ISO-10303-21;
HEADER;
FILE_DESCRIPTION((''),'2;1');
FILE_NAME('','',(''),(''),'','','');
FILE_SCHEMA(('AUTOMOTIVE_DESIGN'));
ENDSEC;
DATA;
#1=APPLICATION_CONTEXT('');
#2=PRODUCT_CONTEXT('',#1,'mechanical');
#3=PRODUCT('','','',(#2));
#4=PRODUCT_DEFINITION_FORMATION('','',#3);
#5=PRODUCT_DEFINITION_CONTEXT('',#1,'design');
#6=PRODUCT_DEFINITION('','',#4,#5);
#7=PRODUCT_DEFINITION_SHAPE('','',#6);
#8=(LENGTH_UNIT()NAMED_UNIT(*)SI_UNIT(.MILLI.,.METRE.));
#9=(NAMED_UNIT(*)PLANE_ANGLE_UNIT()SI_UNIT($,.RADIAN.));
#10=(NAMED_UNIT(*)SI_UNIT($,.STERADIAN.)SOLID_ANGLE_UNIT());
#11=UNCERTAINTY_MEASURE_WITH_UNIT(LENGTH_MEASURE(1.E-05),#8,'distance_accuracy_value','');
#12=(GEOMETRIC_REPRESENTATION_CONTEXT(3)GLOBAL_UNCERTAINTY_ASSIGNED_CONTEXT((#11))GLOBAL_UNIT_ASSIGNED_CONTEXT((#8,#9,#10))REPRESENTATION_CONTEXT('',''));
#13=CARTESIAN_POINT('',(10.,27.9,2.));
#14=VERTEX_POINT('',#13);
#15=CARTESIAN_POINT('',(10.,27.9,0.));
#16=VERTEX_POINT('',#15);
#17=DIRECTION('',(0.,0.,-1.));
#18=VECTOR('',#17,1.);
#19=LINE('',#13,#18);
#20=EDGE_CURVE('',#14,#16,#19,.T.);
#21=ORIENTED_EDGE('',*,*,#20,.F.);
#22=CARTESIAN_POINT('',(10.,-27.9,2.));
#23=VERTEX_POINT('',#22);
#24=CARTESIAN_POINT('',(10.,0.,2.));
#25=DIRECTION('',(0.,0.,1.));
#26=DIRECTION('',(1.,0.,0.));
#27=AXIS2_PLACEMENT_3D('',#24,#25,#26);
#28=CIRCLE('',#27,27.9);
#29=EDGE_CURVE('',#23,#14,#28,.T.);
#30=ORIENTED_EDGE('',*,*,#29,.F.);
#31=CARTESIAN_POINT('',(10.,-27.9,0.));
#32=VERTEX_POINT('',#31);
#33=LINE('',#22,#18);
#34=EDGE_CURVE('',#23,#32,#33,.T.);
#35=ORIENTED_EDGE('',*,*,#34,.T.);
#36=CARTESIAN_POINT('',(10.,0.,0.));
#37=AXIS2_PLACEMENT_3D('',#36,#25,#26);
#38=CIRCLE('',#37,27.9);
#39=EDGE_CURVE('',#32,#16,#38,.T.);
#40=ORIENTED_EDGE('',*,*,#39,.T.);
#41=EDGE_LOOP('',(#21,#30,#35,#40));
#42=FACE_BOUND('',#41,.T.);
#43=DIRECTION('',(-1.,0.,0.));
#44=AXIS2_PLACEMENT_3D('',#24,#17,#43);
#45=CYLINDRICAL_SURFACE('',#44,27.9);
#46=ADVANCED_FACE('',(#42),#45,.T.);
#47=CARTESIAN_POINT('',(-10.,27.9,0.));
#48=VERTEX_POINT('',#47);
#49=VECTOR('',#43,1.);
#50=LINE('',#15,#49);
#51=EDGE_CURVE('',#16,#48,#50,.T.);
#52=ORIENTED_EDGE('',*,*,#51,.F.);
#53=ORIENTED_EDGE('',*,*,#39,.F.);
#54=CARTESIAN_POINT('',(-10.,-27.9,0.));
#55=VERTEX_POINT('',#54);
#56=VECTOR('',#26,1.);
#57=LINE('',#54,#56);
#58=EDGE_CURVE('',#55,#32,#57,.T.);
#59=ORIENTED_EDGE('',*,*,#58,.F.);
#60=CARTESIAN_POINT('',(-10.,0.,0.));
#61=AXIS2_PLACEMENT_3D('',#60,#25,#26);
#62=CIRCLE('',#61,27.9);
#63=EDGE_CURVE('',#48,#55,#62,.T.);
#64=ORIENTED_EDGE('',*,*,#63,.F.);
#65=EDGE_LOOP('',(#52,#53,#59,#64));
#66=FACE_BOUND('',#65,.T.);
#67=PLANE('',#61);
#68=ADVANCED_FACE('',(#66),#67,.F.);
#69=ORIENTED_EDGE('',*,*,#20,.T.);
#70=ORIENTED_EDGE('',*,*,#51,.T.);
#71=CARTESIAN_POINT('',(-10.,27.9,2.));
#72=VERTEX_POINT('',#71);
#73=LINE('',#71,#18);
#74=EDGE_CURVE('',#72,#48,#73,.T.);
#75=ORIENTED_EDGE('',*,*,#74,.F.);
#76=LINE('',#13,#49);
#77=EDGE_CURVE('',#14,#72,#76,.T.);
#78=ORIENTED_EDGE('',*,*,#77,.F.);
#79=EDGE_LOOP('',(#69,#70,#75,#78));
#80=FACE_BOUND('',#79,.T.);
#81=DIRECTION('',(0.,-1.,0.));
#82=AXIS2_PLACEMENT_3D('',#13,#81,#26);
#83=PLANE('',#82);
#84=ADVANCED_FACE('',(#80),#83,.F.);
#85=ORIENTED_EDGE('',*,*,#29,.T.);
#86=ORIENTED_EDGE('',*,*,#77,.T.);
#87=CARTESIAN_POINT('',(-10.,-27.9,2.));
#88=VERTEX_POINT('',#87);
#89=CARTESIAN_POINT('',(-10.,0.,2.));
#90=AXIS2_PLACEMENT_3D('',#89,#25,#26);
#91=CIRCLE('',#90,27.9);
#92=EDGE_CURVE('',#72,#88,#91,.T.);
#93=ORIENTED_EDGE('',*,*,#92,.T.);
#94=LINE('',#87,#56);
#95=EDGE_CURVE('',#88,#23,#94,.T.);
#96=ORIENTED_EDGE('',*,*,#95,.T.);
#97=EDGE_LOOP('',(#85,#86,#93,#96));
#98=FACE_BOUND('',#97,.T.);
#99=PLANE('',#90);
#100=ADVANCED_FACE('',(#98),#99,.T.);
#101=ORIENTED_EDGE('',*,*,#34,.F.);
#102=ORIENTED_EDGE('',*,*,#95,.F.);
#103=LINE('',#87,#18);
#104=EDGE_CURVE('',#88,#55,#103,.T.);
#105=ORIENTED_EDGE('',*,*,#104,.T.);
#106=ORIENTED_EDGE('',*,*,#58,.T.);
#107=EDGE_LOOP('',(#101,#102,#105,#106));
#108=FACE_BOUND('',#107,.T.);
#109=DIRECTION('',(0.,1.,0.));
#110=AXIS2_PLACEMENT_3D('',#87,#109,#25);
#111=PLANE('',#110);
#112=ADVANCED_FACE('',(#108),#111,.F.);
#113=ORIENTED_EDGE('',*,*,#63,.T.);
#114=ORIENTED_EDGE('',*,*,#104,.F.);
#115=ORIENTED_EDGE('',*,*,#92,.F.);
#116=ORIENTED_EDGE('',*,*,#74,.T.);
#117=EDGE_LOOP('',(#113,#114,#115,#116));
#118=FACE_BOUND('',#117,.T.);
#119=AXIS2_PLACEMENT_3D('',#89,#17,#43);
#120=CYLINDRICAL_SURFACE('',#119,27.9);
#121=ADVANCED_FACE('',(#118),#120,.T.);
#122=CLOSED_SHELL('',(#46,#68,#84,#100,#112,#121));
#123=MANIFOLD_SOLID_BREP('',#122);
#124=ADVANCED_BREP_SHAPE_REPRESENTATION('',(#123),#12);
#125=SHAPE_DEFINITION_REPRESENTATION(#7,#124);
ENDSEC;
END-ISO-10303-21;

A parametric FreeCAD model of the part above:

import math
import FreeCAD as App
import Part
import Sketcher
from FreeCAD import Vector
Q = App.Units.Quantity

doc = App.newDocument("Part")
params = doc.addObject("Spreadsheet::Sheet", "Params")
for row, (alias, value) in enumerate([
    ("sketch1_radius", "27.9 mm"),
    ("sketch1_width", "20 mm"),
    ("pad1_length", "2 mm"),
], start=1):
    params.set(f"A{row}", alias)
    params.set(f"B{row}", "=" + value)
    params.setAlias(f"B{row}", alias)

body = doc.addObject("PartDesign::Body", "Body")

# Sketch on XY plane
sketch1 = body.newObject("Sketcher::SketchObject", "Sketch")
sketch1.AttachmentSupport = (doc.getObject("XY_Plane"), [""])
sketch1.MapMode = "FlatFace"
sketch1.addGeometry(Part.LineSegment(Vector(-10, -27.9, 0), Vector(10, -27.9, 0)), False)
sketch1.addGeometry(Part.ArcOfCircle(Part.Circle(Vector(10, 0, 0), Vector(0, 0, 1), 27.9), math.radians(-90), math.radians(90)), False)
sketch1.addGeometry(Part.LineSegment(Vector(10, 27.9, 0), Vector(-10, 27.9, 0)), False)
sketch1.addGeometry(Part.ArcOfCircle(Part.Circle(Vector(-10, 0, 0), Vector(0, 0, 1), 27.9), math.radians(90), math.radians(270)), False)
sketch1.addConstraint(Sketcher.Constraint("Tangent", 0, 2, 1, 1))
sketch1.addConstraint(Sketcher.Constraint("Tangent", 1, 2, 2, 1))
sketch1.addConstraint(Sketcher.Constraint("Tangent", 2, 2, 3, 1))
sketch1.addConstraint(Sketcher.Constraint("Tangent", 3, 2, 0, 1))
sketch1.addConstraint(Sketcher.Constraint("Horizontal", 0))
sketch1.addConstraint(Sketcher.Constraint("Horizontal", 2))
sketch1.addConstraint(Sketcher.Constraint("Symmetric", 1, 3, 3, 3, -1, 1))
sketch1.addConstraint(Sketcher.Constraint("Radius", 1, Q("27.9 mm")))
sketch1.addConstraint(Sketcher.Constraint("DistanceX", 0, 1, 0, 2, Q("20 mm")))
sketch1.setExpression("Constraints[7]", "Params.sketch1_radius")
sketch1.setExpression("Constraints[8]", "Params.sketch1_width")
pad1 = body.newObject("PartDesign::Pad", "Pad")
pad1.Profile = sketch1
pad1.setExpression("Length", "Params.pad1_length")

doc.recompute()
